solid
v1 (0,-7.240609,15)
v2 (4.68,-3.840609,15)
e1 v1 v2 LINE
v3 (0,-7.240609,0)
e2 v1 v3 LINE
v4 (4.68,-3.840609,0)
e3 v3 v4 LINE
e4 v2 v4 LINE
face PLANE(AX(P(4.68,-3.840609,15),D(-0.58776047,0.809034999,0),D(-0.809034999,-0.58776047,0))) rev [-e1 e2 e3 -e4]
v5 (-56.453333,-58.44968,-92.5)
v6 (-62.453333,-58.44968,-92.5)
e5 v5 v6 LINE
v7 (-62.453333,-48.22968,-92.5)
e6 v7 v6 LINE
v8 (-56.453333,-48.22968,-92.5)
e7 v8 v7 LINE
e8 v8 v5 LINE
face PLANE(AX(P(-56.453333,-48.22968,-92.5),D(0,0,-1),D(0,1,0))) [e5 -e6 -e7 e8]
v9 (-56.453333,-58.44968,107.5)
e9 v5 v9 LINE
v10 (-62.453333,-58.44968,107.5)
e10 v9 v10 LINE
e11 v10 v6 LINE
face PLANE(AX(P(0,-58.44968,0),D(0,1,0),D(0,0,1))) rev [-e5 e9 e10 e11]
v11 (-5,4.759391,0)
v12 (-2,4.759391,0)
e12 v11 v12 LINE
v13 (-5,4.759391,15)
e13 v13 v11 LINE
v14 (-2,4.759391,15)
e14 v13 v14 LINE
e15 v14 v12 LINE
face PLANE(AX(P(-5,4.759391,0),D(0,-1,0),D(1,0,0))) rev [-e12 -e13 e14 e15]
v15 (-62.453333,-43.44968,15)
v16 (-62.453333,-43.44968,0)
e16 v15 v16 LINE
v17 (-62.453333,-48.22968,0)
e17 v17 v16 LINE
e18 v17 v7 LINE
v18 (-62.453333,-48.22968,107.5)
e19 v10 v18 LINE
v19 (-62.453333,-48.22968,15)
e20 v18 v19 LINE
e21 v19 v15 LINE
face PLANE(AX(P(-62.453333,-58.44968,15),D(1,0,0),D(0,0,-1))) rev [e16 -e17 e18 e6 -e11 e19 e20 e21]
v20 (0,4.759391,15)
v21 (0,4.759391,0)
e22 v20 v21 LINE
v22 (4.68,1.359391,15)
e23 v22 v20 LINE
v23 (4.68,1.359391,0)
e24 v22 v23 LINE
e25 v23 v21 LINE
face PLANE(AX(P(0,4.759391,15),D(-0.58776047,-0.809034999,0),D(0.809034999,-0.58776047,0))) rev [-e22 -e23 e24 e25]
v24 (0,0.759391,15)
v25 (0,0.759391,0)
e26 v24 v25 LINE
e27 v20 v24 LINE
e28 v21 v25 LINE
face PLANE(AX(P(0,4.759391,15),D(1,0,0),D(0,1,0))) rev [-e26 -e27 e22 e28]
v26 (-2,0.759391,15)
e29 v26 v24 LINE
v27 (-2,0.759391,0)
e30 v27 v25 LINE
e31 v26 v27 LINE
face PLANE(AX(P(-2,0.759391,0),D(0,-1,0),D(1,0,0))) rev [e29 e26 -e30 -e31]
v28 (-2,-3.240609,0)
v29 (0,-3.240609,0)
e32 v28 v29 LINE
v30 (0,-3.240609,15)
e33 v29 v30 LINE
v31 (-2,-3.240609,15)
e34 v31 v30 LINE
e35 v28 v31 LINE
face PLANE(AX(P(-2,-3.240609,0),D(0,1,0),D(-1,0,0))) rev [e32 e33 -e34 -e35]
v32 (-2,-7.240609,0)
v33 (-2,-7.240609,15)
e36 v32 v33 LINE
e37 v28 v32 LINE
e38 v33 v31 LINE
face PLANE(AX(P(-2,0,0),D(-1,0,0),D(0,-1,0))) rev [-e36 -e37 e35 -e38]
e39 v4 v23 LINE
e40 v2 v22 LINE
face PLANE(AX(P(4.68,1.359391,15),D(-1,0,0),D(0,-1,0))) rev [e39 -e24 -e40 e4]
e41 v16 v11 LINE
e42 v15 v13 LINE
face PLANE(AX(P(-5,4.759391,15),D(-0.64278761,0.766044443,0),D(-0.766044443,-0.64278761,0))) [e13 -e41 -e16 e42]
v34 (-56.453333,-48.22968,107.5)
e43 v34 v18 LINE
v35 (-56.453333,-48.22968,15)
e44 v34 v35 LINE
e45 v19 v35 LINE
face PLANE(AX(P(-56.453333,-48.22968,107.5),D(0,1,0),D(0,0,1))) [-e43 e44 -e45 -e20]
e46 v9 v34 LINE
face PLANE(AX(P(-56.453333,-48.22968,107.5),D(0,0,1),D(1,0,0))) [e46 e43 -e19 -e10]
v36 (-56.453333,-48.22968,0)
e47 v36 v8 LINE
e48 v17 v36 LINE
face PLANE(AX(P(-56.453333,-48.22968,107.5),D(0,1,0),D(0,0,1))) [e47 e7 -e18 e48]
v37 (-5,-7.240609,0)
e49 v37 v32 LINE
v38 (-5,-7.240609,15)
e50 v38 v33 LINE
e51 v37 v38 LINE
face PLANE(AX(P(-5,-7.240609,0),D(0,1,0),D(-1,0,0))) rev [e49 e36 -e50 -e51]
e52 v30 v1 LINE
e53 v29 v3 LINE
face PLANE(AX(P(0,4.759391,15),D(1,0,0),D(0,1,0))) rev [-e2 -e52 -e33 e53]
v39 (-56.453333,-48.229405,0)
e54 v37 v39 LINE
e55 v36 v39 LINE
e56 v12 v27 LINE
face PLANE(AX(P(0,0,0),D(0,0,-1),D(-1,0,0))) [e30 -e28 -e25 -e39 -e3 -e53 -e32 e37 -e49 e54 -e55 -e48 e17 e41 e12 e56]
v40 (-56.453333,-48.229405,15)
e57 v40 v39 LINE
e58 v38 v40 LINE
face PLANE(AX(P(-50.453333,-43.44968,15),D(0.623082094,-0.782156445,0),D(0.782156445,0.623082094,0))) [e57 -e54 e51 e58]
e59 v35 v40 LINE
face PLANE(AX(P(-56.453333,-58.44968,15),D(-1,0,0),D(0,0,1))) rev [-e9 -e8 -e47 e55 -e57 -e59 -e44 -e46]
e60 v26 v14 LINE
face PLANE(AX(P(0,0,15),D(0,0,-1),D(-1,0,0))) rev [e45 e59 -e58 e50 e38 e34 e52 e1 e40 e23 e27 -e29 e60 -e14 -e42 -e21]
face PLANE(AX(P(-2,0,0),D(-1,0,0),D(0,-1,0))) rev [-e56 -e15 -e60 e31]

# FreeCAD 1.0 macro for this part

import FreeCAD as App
import Part
import Sketcher
Q = App.Units.Quantity

doc = App.newDocument("Part")
body = doc.addObject("PartDesign::Body", "Body")

sketch1 = doc.addObject("Sketcher::SketchObject", "Sketch")
body.addObject(sketch1)
sketch1.AttachmentSupport = (doc.XY_Plane, [""])
sketch1.MapMode = "FlatFace"
sketch1.addGeometry([
    Part.LineSegment(App.Vector(4.68, 1.359391, 0), App.Vector(0, 4.759391, 0)),
    Part.LineSegment(App.Vector(0, 4.759391, 0), App.Vector(0, -7.240609, 0)),
    Part.LineSegment(App.Vector(0, -7.240609, 0), App.Vector(4.68, -3.840609, 0)),
    Part.LineSegment(App.Vector(4.68, -3.840609, 0), App.Vector(4.68, 1.359391, 0)),
], False)
sketch1.addConstraint([
    Sketcher.Constraint("Coincident", 0, 2, 1, 1),
    Sketcher.Constraint("Coincident", 1, 2, 2, 1),
    Sketcher.Constraint("Coincident", 2, 2, 3, 1),
    Sketcher.Constraint("Coincident", 3, 2, 0, 1),
    Sketcher.Constraint("Vertical", 1),
    Sketcher.Constraint("Vertical", 3),
    Sketcher.Constraint("PointOnObject", 0, 2, -2),
    Sketcher.Constraint("Equal", 0, 2),
    Sketcher.Constraint("DistanceY", 1, 2, 1, 1, 12.0),
    Sketcher.Constraint("DistanceY", 3, 1, 3, 2, 5.2),
    Sketcher.Constraint("DistanceX", -1, 1, 2, 2, 4.68),
    Sketcher.Constraint("DistanceY", -1, 1, 0, 2, 4.759391),
])
pad1 = doc.addObject("PartDesign::Pad", "Pad")
body.addObject(pad1)
pad1.Profile = sketch1
pad1.Length = 15

sketch2 = doc.addObject("Sketcher::SketchObject", "Sketch001")
body.addObject(sketch2)
sketch2.AttachmentSupport = (doc.YZ_Plane, [""])
sketch2.MapMode = "FlatFace"
sketch2.addGeometry([
    Part.LineSegment(App.Vector(0.759391, 0, 0), App.Vector(-3.240609, 0, 0)),
    Part.LineSegment(App.Vector(-3.240609, 0, 0), App.Vector(-3.240609, 15, 0)),
    Part.LineSegment(App.Vector(-3.240609, 15, 0), App.Vector(0.759391, 15, 0)),
    Part.LineSegment(App.Vector(0.759391, 15, 0), App.Vector(0.759391, 0, 0)),
], False)
sketch2.addConstraint([
    Sketcher.Constraint("Coincident", 0, 2, 1, 1),
    Sketcher.Constraint("Coincident", 1, 2, 2, 1),
    Sketcher.Constraint("Coincident", 2, 2, 3, 1),
    Sketcher.Constraint("Coincident", 3, 2, 0, 1),
    Sketcher.Constraint("Horizontal", 0),
    Sketcher.Constraint("Vertical", 1),
    Sketcher.Constraint("Horizontal", 2),
    Sketcher.Constraint("Vertical", 3),
    Sketcher.Constraint("PointOnObject", 0, 2, -1),
    Sketcher.Constraint("DistanceX", 0, 2, 0, 1, 4.0),
    Sketcher.Constraint("DistanceY", 1, 1, 1, 2, 15.0),
    Sketcher.Constraint("DistanceX", 0, 2, -1, 1, 3.240609),
])
pad2 = doc.addObject("PartDesign::Pad", "Pad001")
body.addObject(pad2)
pad2.Profile = sketch2
pad2.Length = 2
pad2.Reversed = True

sketch3 = doc.addObject("Sketcher::SketchObject", "Sketch002")
body.addObject(sketch3)
sketch3.AttachmentSupport = (doc.YZ_Plane, [""])
sketch3.MapMode = "FlatFace"
sketch3.AttachmentOffset = App.Placement(App.Vector(0, 0, -2), App.Rotation())
sketch3.addGeometry([
    Part.LineSegment(App.Vector(4.759391, 0, 0), App.Vector(-7.240609, 0, 0)),
    Part.LineSegment(App.Vector(-7.240609, 0, 0), App.Vector(-7.240609, 15, 0)),
    Part.LineSegment(App.Vector(-7.240609, 15, 0), App.Vector(4.759391, 15, 0)),
    Part.LineSegment(App.Vector(4.759391, 15, 0), App.Vector(4.759391, 0, 0)),
], False)
sketch3.addConstraint([
    Sketcher.Constraint("Coincident", 0, 2, 1, 1),
    Sketcher.Constraint("Coincident", 1, 2, 2, 1),
    Sketcher.Constraint("Coincident", 2, 2, 3, 1),
    Sketcher.Constraint("Coincident", 3, 2, 0, 1),
    Sketcher.Constraint("Horizontal", 0),
    Sketcher.Constraint("Vertical", 1),
    Sketcher.Constraint("Horizontal", 2),
    Sketcher.Constraint("Vertical", 3),
    Sketcher.Constraint("PointOnObject", 0, 2, -1),
    Sketcher.Constraint("DistanceX", 0, 2, 0, 1, 12.0),
    Sketcher.Constraint("DistanceY", 1, 1, 1, 2, 15.0),
    Sketcher.Constraint("DistanceX", 0, 2, -1, 1, 7.240609),
])
pad3 = doc.addObject("PartDesign::Pad", "Pad002")
body.addObject(pad3)
pad3.Profile = sketch3
pad3.Length = 3
pad3.Reversed = True

sketch4 = doc.addObject("Sketcher::SketchObject", "Sketch003")
body.addObject(sketch4)
sketch4.AttachmentSupport = (doc.XY_Plane, [""])
sketch4.MapMode = "FlatFace"
sketch4.addGeometry([
    Part.LineSegment(App.Vector(-62.453333, -43.44968, 0), App.Vector(-5, 4.759391, 0)),
    Part.LineSegment(App.Vector(-5, 4.759391, 0), App.Vector(-5, -7.240609, 0)),
    Part.LineSegment(App.Vector(-5, -7.240609, 0), App.Vector(-50.453333, -43.44968, 0)),
    Part.LineSegment(App.Vector(-50.453333, -43.44968, 0), App.Vector(-62.453333, -43.44968, 0)),
], False)
sketch4.addConstraint([
    Sketcher.Constraint("Coincident", 0, 2, 1, 1),
    Sketcher.Constraint("Coincident", 1, 2, 2, 1),
    Sketcher.Constraint("Coincident", 2, 2, 3, 1),
    Sketcher.Constraint("Coincident", 3, 2, 0, 1),
    Sketcher.Constraint("Vertical", 1),
    Sketcher.Constraint("Horizontal", 3),
    Sketcher.Constraint("Equal", 3, 1),
    Sketcher.Constraint("DistanceX", 3, 2, 3, 1, 12.0),
    Sketcher.Constraint("Angle", 0, Q("40 deg")),
    Sketcher.Constraint("Distance", 0, 75.0),
    Sketcher.Constraint("DistanceX", 0, 2, -1, 1, 5.0),
    Sketcher.Constraint("DistanceY", -1, 1, 0, 2, 4.759391),
])
pad4 = doc.addObject("PartDesign::Pad", "Pad003")
body.addObject(pad4)
pad4.Profile = sketch4
pad4.Length = 15

sketch5 = doc.addObject("Sketcher::SketchObject", "Sketch004")
body.addObject(sketch5)
sketch5.AttachmentSupport = (doc.XZ_Plane, [""])
sketch5.MapMode = "FlatFace"
sketch5.AttachmentOffset = App.Placement(App.Vector(0, 0, 43.44968), App.Rotation())
sketch5.addGeometry([
    Part.LineSegment(App.Vector(-56.453333, 0, 0), App.Vector(-56.453333, 15, 0)),
    Part.LineSegment(App.Vector(-56.453333, 15, 0), App.Vector(-62.453333, 15, 0)),
    Part.LineSegment(App.Vector(-62.453333, 15, 0), App.Vector(-62.453333, 0, 0)),
    Part.LineSegment(App.Vector(-62.453333, 0, 0), App.Vector(-56.453333, 0, 0)),
], False)
sketch5.addConstraint([
    Sketcher.Constraint("Coincident", 0, 2, 1, 1),
    Sketcher.Constraint("Coincident", 1, 2, 2, 1),
    Sketcher.Constraint("Coincident", 2, 2, 3, 1),
    Sketcher.Constraint("Coincident", 3, 2, 0, 1),
    Sketcher.Constraint("Vertical", 0),
    Sketcher.Constraint("Horizontal", 1),
    Sketcher.Constraint("Vertical", 2),
    Sketcher.Constraint("Horizontal", 3),
    Sketcher.Constraint("PointOnObject", 2, 2, -1),
    Sketcher.Constraint("DistanceX", 1, 2, 1, 1, 6.0),
    Sketcher.Constraint("DistanceY", 0, 1, 0, 2, 15.0),
    Sketcher.Constraint("DistanceX", 0, 2, -1, 1, 56.453333),
])
pad5 = doc.addObject("PartDesign::Pad", "Pad004")
body.addObject(pad5)
pad5.Profile = sketch5
pad5.Length = 15

sketch6 = doc.addObject("Sketcher::SketchObject", "Sketch005")
body.addObject(sketch6)
sketch6.AttachmentSupport = (doc.XY_Plane, [""])
sketch6.MapMode = "FlatFace"
sketch6.addGeometry([
    Part.LineSegment(App.Vector(-50.453333, -43.44968, 0), App.Vector(-56.453333, -48.229405, 0)),
    Part.LineSegment(App.Vector(-56.453333, -48.229405, 0), App.Vector(-56.453333, -43.44968, 0)),
    Part.LineSegment(App.Vector(-56.453333, -43.44968, 0), App.Vector(-50.453333, -43.44968, 0)),
], False)
sketch6.addConstraint([
    Sketcher.Constraint("Coincident", 0, 2, 1, 1),
    Sketcher.Constraint("Coincident", 1, 2, 2, 1),
    Sketcher.Constraint("Coincident", 2, 2, 0, 1),
    Sketcher.Constraint("Vertical", 1),
    Sketcher.Constraint("Horizontal", 2),
    Sketcher.Constraint("DistanceX", 2, 1, 2, 2, 6.0),
    Sketcher.Constraint("Distance", 0, 7.6711),
    Sketcher.Constraint("DistanceY", 1, 2, -1, 1, 43.44968),
    Sketcher.Constraint("DistanceX", 0, 2, -1, 1, 56.453333),
])
pad6 = doc.addObject("PartDesign::Pad", "Pad005")
body.addObject(pad6)
pad6.Profile = sketch6
pad6.Length = 15

sketch7 = doc.addObject("Sketcher::SketchObject", "Sketch006")
body.addObject(sketch7)
sketch7.AttachmentSupport = (doc.YZ_Plane, [""])
sketch7.MapMode = "FlatFace"
sketch7.AttachmentOffset = App.Placement(App.Vector(0, 0, -62.453333), App.Rotation())
sketch7.addGeometry([
    Part.LineSegment(App.Vector(-48.22968, -92.5, 0), App.Vector(-58.44968, -92.5, 0)),
    Part.LineSegment(App.Vector(-58.44968, -92.5, 0), App.Vector(-58.44968, 107.5, 0)),
    Part.LineSegment(App.Vector(-58.44968, 107.5, 0), App.Vector(-48.22968, 107.5, 0)),
    Part.LineSegment(App.Vector(-48.22968, 107.5, 0), App.Vector(-48.22968, -92.5, 0)),
], False)
sketch7.addConstraint([
    Sketcher.Constraint("Coincident", 0, 2, 1, 1),
    Sketcher.Constraint("Coincident", 1, 2, 2, 1),
    Sketcher.Constraint("Coincident", 2, 2, 3, 1),
    Sketcher.Constraint("Coincident", 3, 2, 0, 1),
    Sketcher.Constraint("Horizontal", 0),
    Sketcher.Constraint("Vertical", 1),
    Sketcher.Constraint("Horizontal", 2),
    Sketcher.Constraint("Vertical", 3),
    Sketcher.Constraint("DistanceY", 1, 1, 1, 2, 200.0),
    Sketcher.Constraint("DistanceX", 0, 2, 0, 1, 10.22),
    Sketcher.Constraint("DistanceY", 0, 2, -1, 1, 92.5),
    Sketcher.Constraint("DistanceX", 0, 2, -1, 1, 58.44968),
])
pad7 = doc.addObject("PartDesign::Pad", "Pad006")
body.addObject(pad7)
pad7.Profile = sketch7
pad7.Length = 6

doc.recompute()
